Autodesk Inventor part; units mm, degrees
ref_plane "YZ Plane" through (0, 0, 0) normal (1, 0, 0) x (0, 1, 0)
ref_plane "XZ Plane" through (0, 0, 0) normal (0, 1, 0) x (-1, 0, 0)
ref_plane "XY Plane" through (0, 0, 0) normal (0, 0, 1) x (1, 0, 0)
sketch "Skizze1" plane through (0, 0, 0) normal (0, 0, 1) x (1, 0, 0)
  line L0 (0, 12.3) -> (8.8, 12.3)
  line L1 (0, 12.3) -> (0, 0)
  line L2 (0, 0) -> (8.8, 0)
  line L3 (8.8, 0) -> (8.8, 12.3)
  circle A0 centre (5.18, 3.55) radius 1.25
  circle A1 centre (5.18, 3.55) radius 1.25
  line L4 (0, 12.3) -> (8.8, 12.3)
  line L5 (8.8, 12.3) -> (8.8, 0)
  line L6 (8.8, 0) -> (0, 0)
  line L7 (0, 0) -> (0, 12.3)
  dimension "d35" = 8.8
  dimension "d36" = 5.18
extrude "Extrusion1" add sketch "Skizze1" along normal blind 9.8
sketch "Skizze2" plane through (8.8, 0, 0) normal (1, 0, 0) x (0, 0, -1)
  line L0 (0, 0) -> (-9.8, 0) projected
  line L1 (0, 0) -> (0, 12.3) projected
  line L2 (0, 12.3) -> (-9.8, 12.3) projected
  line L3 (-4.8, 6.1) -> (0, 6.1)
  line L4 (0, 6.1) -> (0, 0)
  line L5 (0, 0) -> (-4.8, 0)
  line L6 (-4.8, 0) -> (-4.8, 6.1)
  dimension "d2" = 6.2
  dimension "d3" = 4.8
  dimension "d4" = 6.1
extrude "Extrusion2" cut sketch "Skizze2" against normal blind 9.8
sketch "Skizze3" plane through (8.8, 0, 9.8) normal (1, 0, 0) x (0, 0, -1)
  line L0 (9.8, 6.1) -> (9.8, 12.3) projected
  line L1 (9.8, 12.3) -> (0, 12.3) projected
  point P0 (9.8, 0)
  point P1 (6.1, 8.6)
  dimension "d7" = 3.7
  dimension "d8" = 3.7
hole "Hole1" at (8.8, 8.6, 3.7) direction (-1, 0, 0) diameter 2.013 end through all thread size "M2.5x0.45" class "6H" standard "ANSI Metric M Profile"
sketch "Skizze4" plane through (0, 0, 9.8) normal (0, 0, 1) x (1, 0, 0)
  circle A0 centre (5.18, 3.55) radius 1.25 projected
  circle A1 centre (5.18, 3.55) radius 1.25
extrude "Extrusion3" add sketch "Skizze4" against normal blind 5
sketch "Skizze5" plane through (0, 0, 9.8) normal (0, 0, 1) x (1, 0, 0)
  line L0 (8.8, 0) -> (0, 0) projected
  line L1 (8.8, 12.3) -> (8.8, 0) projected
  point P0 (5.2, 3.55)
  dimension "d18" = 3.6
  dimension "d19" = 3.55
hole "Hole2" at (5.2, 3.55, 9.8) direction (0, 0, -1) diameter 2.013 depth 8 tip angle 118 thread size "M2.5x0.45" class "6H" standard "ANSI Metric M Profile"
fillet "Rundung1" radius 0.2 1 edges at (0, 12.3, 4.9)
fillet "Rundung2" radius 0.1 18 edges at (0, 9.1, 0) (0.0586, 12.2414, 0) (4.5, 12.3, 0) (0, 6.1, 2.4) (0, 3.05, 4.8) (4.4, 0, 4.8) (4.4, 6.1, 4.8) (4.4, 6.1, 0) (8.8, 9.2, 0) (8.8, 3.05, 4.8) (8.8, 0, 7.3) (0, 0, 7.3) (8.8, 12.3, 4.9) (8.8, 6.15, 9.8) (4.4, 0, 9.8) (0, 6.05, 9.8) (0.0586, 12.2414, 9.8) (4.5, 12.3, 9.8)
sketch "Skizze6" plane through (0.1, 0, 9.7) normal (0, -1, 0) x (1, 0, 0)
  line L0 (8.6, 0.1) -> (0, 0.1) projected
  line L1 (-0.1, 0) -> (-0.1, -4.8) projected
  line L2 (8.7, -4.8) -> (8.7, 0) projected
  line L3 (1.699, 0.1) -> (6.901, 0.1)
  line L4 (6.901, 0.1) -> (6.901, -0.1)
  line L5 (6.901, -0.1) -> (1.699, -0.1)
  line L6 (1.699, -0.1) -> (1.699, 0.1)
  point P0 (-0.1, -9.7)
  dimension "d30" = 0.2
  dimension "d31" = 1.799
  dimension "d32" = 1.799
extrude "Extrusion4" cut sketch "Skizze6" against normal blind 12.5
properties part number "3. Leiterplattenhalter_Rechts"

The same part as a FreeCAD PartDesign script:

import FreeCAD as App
import Part
import Sketcher

V = App.Vector


def edges_at(feature, points):
    """Names of the edges that pass closest to the given points."""
    edges = feature.Shape.Edges
    near = lambda p: min(range(len(edges)), key=lambda i: edges[i].distToShape(Part.Vertex(*p))[0])
    return sorted({f"Edge{near(p) + 1}" for p in points})

doc = App.newDocument("Part")
body = doc.addObject("PartDesign::Body", "Body")

# Sketch on XY plane
sketch1 = body.newObject("Sketcher::SketchObject", "Sketch")
sketch1.AttachmentSupport = (doc.getObject("XY_Plane"), [""])
sketch1.MapMode = "FlatFace"
sketch1.addGeometry(Part.LineSegment(V(8.8, 12.3, 0), V(0, 12.3, 0)), False)
sketch1.addGeometry(Part.LineSegment(V(0, 12.3, 0), V(0, 0, 0)), False)
sketch1.addGeometry(Part.LineSegment(V(0, 0, 0), V(8.8, 0, 0)), False)
sketch1.addGeometry(Part.LineSegment(V(8.8, 0, 0), V(8.8, 12.3, 0)), False)
sketch1.addGeometry(Part.Circle(V(5.18, 3.55, 0), V(0, 0, 1), 1.25), False)
sketch1.addConstraint(Sketcher.Constraint("Coincident", 0, 2, 1, 1))
sketch1.addConstraint(Sketcher.Constraint("Coincident", 1, 2, 2, 1))
sketch1.addConstraint(Sketcher.Constraint("Coincident", 2, 2, 3, 1))
sketch1.addConstraint(Sketcher.Constraint("Coincident", 3, 2, 0, 1))
sketch1.addConstraint(Sketcher.Constraint("Horizontal", 0))
sketch1.addConstraint(Sketcher.Constraint("Vertical", 1))
sketch1.addConstraint(Sketcher.Constraint("Horizontal", 2))
sketch1.addConstraint(Sketcher.Constraint("Vertical", 3))
sketch1.addConstraint(Sketcher.Constraint("Coincident", 1, 2, -1, 1))
sketch1.addConstraint(Sketcher.Constraint("DistanceX", 0, 2, 0, 1, 8.8))
sketch1.addConstraint(Sketcher.Constraint("Diameter", 4, 2.5))
sketch1.addConstraint(Sketcher.Constraint("DistanceX", -1, 1, 4, 3, 5.18))
sketch1.addConstraint(Sketcher.Constraint("DistanceY", 1, 2, 1, 1, 12.3))
sketch1.addConstraint(Sketcher.Constraint("DistanceY", -1, 1, 4, 3, 3.55))
pad1 = body.newObject("PartDesign::Pad", "Pad")
pad1.Profile = sketch1
pad1.Length = 9.8

# Sketch on YZ plane
sketch2 = body.newObject("Sketcher::SketchObject", "Sketch001")
sketch2.AttachmentSupport = (doc.getObject("YZ_Plane"), [""])
sketch2.MapMode = "FlatFace"
sketch2.AttachmentOffset = App.Placement(V(0, 0, 8.8), App.Rotation())
sketch2.addGeometry(Part.LineSegment(V(0, 4.8, 0), V(0, 0, 0)), False)
sketch2.addGeometry(Part.LineSegment(V(0, 0, 0), V(6.1, 0, 0)), False)
sketch2.addGeometry(Part.LineSegment(V(6.1, 0, 0), V(6.1, 4.8, 0)), False)
sketch2.addGeometry(Part.LineSegment(V(6.1, 4.8, 0), V(0, 4.8, 0)), False)
sketch2.addConstraint(Sketcher.Constraint("Coincident", 0, 2, 1, 1))
sketch2.addConstraint(Sketcher.Constraint("Coincident", 1, 2, 2, 1))
sketch2.addConstraint(Sketcher.Constraint("Coincident", 2, 2, 3, 1))
sketch2.addConstraint(Sketcher.Constraint("Coincident", 3, 2, 0, 1))
sketch2.addConstraint(Sketcher.Constraint("Vertical", 0))
sketch2.addConstraint(Sketcher.Constraint("Horizontal", 1))
sketch2.addConstraint(Sketcher.Constraint("Vertical", 2))
sketch2.addConstraint(Sketcher.Constraint("Horizontal", 3))
sketch2.addConstraint(Sketcher.Constraint("Coincident", 0, 2, -1, 1))
sketch2.addConstraint(Sketcher.Constraint("DistanceX", 1, 1, 1, 2, 6.1))
sketch2.addConstraint(Sketcher.Constraint("DistanceY", 0, 2, 0, 1, 4.8))
pocket1 = body.newObject("PartDesign::Pocket", "Pocket")
pocket1.Profile = sketch2
pocket1.Length = 9.8

# Sketch on YZ plane
sketch3 = body.newObject("Sketcher::SketchObject", "Sketch002")
sketch3.AttachmentSupport = (doc.getObject("YZ_Plane"), [""])
sketch3.MapMode = "FlatFace"
sketch3.AttachmentOffset = App.Placement(V(0, 0, 8.8), App.Rotation())
sketch3.addGeometry(Part.Circle(V(8.6, 3.7, 0), V(0, 0, 1), 1.0065), False)
sketch3.addConstraint(Sketcher.Constraint("Diameter", 0, 2.013))
sketch3.addConstraint(Sketcher.Constraint("DistanceX", -1, 1, 0, 3, 8.6))
sketch3.addConstraint(Sketcher.Constraint("DistanceY", -1, 1, 0, 3, 3.7))
doc.recompute()
hole = body.newObject("PartDesign::Hole", "Hole")
hole.Profile = sketch3
hole.ThreadType = "None"
hole.Diameter = 2.013
hole.DepthType = "ThroughAll"

# Sketch on XY plane
sketch4 = body.newObject("Sketcher::SketchObject", "Sketch003")
sketch4.AttachmentSupport = (doc.getObject("XY_Plane"), [""])
sketch4.MapMode = "FlatFace"
sketch4.AttachmentOffset = App.Placement(V(0, 0, 9.8), App.Rotation())
sketch4.addGeometry(Part.Circle(V(5.18, 3.55, 0), V(0, 0, 1), 1.25), False)
sketch4.addConstraint(Sketcher.Constraint("Diameter", 0, 2.5))
sketch4.addConstraint(Sketcher.Constraint("DistanceX", -1, 1, 0, 3, 5.18))
sketch4.addConstraint(Sketcher.Constraint("DistanceY", -1, 1, 0, 3, 3.55))
pad2 = body.newObject("PartDesign::Pad", "Pad001")
pad2.Profile = sketch4
pad2.Length = 5
pad2.Reversed = True

# Sketch on XY plane
sketch5 = body.newObject("Sketcher::SketchObject", "Sketch004")
sketch5.AttachmentSupport = (doc.getObject("XY_Plane"), [""])
sketch5.MapMode = "FlatFace"
sketch5.AttachmentOffset = App.Placement(V(0, 0, 9.8), App.Rotation())
sketch5.addGeometry(Part.Circle(V(5.2, 3.55, 0), V(0, 0, 1), 1.0065), False)
sketch5.addConstraint(Sketcher.Constraint("Diameter", 0, 2.013))
sketch5.addConstraint(Sketcher.Constraint("DistanceX", -1, 1, 0, 3, 5.2))
sketch5.addConstraint(Sketcher.Constraint("DistanceY", -1, 1, 0, 3, 3.55))
doc.recompute()
hole2 = body.newObject("PartDesign::Hole", "Hole001")
hole2.Profile = sketch5
hole2.ThreadType = "None"
hole2.Diameter = 2.013
hole2.DepthType = "Dimension"
hole2.Depth = 8
hole2.DrillPoint = "Angled"
hole2.DrillPointAngle = 118
doc.recompute()

fillet = body.newObject("PartDesign::Fillet", "Fillet")
fillet.Base = (hole2, edges_at(hole2, [(0, 12.3, 4.9)]))
fillet.Radius = 0.2
doc.recompute()

fillet2 = body.newObject("PartDesign::Fillet", "Fillet001")
fillet2.Base = (fillet, edges_at(fillet, [
    (0, 9.1, 0),
    (0.059, 12.241, 0),
    (4.5, 12.3, 0),
    (0, 6.1, 2.4),
    (0, 3.05, 4.8),
    (4.4, 0, 4.8),
    (4.4, 6.1, 4.8),
    (4.4, 6.1, 0),
    (8.8, 9.2, 0),
    (8.8, 3.05, 4.8),
    (8.8, 0, 7.3),
    (0, 0, 7.3),
    (8.8, 12.3, 4.9),
    (8.8, 6.15, 9.8),
    (4.4, 0, 9.8),
    (0, 6.05, 9.8),
    (0.059, 12.241, 9.8),
    (4.5, 12.3, 9.8),
]))
fillet2.Radius = 0.1

# Sketch on XZ plane
sketch6 = body.newObject("Sketcher::SketchObject", "Sketch005")
sketch6.AttachmentSupport = (doc.getObject("XZ_Plane"), [""])
sketch6.MapMode = "FlatFace"
sketch6.addGeometry(Part.LineSegment(V(7.001, 9.6, 0), V(7.001, 9.8, 0)), False)
sketch6.addGeometry(Part.LineSegment(V(7.001, 9.8, 0), V(1.799, 9.8, 0)), False)
sketch6.addGeometry(Part.LineSegment(V(1.799, 9.8, 0), V(1.799, 9.6, 0)), False)
sketch6.addGeometry(Part.LineSegment(V(1.799, 9.6, 0), V(7.001, 9.6, 0)), False)
sketch6.addConstraint(Sketcher.Constraint("Coincident", 0, 2, 1, 1))
sketch6.addConstraint(Sketcher.Constraint("Coincident", 1, 2, 2, 1))
sketch6.addConstraint(Sketcher.Constraint("Coincident", 2, 2, 3, 1))
sketch6.addConstraint(Sketcher.Constraint("Coincident", 3, 2, 0, 1))
sketch6.addConstraint(Sketcher.Constraint("Vertical", 0))
sketch6.addConstraint(Sketcher.Constraint("Horizontal", 1))
sketch6.addConstraint(Sketcher.Constraint("Vertical", 2))
sketch6.addConstraint(Sketcher.Constraint("Horizontal", 3))
sketch6.addConstraint(Sketcher.Constraint("DistanceY", 0, 1, 0, 2, 0.2))
sketch6.addConstraint(Sketcher.Constraint("DistanceX", -1, 1, 1, 2, 1.799))
sketch6.addConstraint(Sketcher.Constraint("DistanceY", -1, 1, 0, 2, 9.8))
sketch6.addConstraint(Sketcher.Constraint("DistanceX", 1, 2, 1, 1, 5.202))
pocket2 = body.newObject("PartDesign::Pocket", "Pocket001")
pocket2.Profile = sketch6
pocket2.Length = 12.5

doc.recompute()
